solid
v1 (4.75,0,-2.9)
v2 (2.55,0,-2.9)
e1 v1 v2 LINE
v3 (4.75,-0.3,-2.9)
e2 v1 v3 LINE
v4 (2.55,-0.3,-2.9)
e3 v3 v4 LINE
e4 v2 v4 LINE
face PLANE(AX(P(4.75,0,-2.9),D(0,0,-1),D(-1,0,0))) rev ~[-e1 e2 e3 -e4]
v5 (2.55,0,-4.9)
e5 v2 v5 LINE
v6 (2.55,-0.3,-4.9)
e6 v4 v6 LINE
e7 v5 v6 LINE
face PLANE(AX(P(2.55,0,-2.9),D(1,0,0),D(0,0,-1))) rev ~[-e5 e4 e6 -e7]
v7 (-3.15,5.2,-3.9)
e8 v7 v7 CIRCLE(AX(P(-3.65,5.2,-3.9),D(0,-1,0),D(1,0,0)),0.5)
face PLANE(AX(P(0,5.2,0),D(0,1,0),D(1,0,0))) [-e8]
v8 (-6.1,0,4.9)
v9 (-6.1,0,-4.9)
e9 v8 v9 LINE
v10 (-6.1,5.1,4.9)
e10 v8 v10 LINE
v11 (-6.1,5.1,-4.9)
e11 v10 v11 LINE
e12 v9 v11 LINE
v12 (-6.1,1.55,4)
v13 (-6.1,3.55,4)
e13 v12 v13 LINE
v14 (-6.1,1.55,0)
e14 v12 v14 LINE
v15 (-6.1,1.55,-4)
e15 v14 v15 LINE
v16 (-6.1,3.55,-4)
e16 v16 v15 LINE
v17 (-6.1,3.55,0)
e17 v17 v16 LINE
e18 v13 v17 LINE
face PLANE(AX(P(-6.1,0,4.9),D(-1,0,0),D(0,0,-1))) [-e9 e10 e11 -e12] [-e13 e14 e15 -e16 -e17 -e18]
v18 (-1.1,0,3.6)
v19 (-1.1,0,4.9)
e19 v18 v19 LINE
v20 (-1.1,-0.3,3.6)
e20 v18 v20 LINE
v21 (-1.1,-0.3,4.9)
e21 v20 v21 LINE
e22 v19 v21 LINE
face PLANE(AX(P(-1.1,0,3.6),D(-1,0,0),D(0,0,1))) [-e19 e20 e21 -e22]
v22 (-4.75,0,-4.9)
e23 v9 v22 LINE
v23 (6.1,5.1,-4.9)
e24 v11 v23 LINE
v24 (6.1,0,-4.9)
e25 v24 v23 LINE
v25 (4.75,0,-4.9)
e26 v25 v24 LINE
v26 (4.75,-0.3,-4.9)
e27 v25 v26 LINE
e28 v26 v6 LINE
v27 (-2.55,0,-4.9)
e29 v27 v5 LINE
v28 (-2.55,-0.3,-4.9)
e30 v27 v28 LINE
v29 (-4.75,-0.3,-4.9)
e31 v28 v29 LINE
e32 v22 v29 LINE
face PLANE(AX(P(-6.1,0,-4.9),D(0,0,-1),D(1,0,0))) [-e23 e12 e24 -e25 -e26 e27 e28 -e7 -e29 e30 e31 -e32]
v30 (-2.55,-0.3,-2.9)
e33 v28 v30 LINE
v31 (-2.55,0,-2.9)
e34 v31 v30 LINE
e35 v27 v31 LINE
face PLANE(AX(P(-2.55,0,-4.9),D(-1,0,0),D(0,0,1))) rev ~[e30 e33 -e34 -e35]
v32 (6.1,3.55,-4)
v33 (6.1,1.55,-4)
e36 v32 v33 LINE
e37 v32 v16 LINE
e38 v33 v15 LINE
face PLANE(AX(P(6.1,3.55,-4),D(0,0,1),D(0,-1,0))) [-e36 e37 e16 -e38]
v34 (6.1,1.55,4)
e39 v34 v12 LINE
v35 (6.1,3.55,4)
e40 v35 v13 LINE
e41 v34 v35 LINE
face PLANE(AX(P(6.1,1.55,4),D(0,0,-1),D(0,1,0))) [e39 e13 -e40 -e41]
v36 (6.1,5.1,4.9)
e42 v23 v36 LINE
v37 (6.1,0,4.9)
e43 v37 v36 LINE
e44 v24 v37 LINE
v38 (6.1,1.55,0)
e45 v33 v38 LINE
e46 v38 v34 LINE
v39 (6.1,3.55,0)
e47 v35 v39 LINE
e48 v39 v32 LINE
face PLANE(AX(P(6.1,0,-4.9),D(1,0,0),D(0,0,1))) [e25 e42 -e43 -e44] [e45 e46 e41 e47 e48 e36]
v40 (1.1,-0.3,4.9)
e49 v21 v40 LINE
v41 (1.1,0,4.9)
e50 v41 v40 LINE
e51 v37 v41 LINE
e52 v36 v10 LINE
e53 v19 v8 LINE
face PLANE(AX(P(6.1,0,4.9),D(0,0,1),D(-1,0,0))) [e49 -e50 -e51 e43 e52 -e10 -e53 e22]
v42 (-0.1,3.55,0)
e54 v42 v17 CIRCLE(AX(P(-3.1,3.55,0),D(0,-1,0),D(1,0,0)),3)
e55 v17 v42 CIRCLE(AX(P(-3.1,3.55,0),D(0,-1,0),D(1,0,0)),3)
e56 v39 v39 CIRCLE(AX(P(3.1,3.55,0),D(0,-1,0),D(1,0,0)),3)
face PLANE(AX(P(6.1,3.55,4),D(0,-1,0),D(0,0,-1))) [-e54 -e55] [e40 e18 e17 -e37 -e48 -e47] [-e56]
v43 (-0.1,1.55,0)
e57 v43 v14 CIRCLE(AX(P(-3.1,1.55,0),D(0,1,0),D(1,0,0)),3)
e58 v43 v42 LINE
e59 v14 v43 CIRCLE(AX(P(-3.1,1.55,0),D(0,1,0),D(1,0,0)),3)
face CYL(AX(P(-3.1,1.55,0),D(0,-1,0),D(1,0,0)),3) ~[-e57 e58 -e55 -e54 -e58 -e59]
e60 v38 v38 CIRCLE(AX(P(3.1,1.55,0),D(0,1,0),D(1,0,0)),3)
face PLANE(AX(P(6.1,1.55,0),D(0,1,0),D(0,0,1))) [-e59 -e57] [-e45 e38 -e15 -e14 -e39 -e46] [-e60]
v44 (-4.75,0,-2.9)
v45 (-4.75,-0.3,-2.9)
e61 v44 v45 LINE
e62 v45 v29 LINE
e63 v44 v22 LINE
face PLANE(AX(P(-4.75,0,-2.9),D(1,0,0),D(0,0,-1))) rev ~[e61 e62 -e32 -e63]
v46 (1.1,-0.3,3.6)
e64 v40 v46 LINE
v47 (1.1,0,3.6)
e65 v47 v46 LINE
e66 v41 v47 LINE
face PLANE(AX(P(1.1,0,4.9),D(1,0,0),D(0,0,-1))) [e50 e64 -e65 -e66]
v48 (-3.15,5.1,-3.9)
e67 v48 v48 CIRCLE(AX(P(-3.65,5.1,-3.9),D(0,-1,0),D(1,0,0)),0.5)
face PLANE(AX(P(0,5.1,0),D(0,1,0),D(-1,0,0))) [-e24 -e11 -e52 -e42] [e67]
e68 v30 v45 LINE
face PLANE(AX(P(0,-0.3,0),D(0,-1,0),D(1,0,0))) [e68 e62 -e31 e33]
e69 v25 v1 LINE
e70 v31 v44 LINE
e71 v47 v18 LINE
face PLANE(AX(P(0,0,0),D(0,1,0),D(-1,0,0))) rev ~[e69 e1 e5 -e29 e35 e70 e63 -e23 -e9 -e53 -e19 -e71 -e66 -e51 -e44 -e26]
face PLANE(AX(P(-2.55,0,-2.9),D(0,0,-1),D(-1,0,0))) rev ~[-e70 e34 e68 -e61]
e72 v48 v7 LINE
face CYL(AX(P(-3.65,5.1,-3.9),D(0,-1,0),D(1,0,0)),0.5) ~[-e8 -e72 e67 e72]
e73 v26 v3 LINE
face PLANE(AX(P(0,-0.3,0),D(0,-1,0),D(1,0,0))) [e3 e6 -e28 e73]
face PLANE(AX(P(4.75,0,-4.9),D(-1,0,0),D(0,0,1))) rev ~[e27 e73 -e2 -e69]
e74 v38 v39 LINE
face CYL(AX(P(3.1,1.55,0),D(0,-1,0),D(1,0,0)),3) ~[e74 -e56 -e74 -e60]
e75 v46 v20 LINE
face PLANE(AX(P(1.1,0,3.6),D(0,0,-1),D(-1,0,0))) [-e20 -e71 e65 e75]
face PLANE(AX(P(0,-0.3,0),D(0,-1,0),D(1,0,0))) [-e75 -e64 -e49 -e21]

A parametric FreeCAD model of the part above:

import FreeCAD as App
import Part
import Sketcher
Q = App.Units.Quantity

doc = App.newDocument("Part")
body = doc.addObject("PartDesign::Body", "Body")

sketch1 = body.newObject("Sketcher::SketchObject", "Sketch")
sketch1.AttachmentSupport = (doc.getObject("XZ_Plane"), [""])
sketch1.MapMode = "FlatFace"
sketch1.addGeometry(Part.LineSegment(App.Vector(-6, 5, 0), App.Vector(6, 5, 0)), False)
sketch1.addGeometry(Part.LineSegment(App.Vector(6, 5, 0), App.Vector(6, -5, 0)), False)
sketch1.addGeometry(Part.LineSegment(App.Vector(6, -5, 0), App.Vector(-6, -5, 0)), False)
sketch1.addGeometry(Part.LineSegment(App.Vector(-6, -5, 0), App.Vector(-6, 5, 0)), False)
sketch1.addConstraint(Sketcher.Constraint("Coincident", 0, 2, 1, 1))
sketch1.addConstraint(Sketcher.Constraint("Coincident", 1, 2, 2, 1))
sketch1.addConstraint(Sketcher.Constraint("Coincident", 2, 2, 3, 1))
sketch1.addConstraint(Sketcher.Constraint("Coincident", 3, 2, 0, 1))
sketch1.addConstraint(Sketcher.Constraint("Horizontal", 0))
sketch1.addConstraint(Sketcher.Constraint("Vertical", 1))
sketch1.addConstraint(Sketcher.Constraint("Horizontal", 2))
sketch1.addConstraint(Sketcher.Constraint("Vertical", 3))
sketch1.addConstraint(Sketcher.Constraint("Symmetric", 0, 2, 2, 2, -1, 1))
sketch1.addConstraint(Sketcher.Constraint("DistanceX", 0, 1, 0, 2, Q("12.2 mm")))
sketch1.addConstraint(Sketcher.Constraint("DistanceY", 1, 2, 1, 1, Q("9.8 mm")))
pad1 = body.newObject("PartDesign::Pad", "Pad")
pad1.Profile = sketch1
pad1.Length = 5.1
pad1.Reversed = True

sketch2 = body.newObject("Sketcher::SketchObject", "Sketch001")
sketch2.AttachmentSupport = (doc.getObject("YZ_Plane"), [""])
sketch2.MapMode = "FlatFace"
sketch2.AttachmentOffset = App.Placement(App.Vector(0, 0, 6.1), App.Rotation())
sketch2.addGeometry(Part.LineSegment(App.Vector(1.6, 4, 0), App.Vector(1.6, -4, 0)), False)
sketch2.addGeometry(Part.LineSegment(App.Vector(1.6, -4, 0), App.Vector(3.5, -4, 0)), False)
sketch2.addGeometry(Part.LineSegment(App.Vector(3.5, -4, 0), App.Vector(3.5, 4, 0)), False)
sketch2.addGeometry(Part.LineSegment(App.Vector(3.5, 4, 0), App.Vector(1.6, 4, 0)), False)
sketch2.addConstraint(Sketcher.Constraint("Coincident", 0, 2, 1, 1))
sketch2.addConstraint(Sketcher.Constraint("Coincident", 1, 2, 2, 1))
sketch2.addConstraint(Sketcher.Constraint("Coincident", 2, 2, 3, 1))
sketch2.addConstraint(Sketcher.Constraint("Coincident", 3, 2, 0, 1))
sketch2.addConstraint(Sketcher.Constraint("Vertical", 0))
sketch2.addConstraint(Sketcher.Constraint("Horizontal", 1))
sketch2.addConstraint(Sketcher.Constraint("Vertical", 2))
sketch2.addConstraint(Sketcher.Constraint("Horizontal", 3))
sketch2.addConstraint(Sketcher.Constraint("DistanceX", 1, 1, 1, 2, Q("2 mm")))
sketch2.addConstraint(Sketcher.Constraint("DistanceY", 0, 2, 0, 1, Q("8 mm")))
sketch2.addConstraint(Sketcher.Constraint("DistanceY", 0, 2, -1, 1, Q("4 mm")))
sketch2.addConstraint(Sketcher.Constraint("DistanceX", -1, 1, 0, 2, Q("1.55 mm")))
pocket1 = body.newObject("PartDesign::Pocket", "Pocket")
pocket1.Profile = sketch2
pocket1.Type = "UpToFirst"

sketch3 = body.newObject("Sketcher::SketchObject", "Sketch002")
sketch3.AttachmentSupport = (doc.getObject("XZ_Plane"), [""])
sketch3.MapMode = "FlatFace"
sketch3.AttachmentOffset = App.Placement(App.Vector(0, 0, -1.55), App.Rotation())
sketch3.addGeometry(Part.Circle(App.Vector(3.1, 0, 0), App.Vector(0, 0, 1), 3), False)
sketch3.addGeometry(Part.Circle(App.Vector(-3.1, 0, 0), App.Vector(0, 0, 1), 3), False)
sketch3.addConstraint(Sketcher.Constraint("Equal", 0, 1))
sketch3.addConstraint(Sketcher.Constraint("Symmetric", 0, 3, 1, 3, -1, 1))
sketch3.addConstraint(Sketcher.Constraint("PointOnObject", 0, 3, -1))
sketch3.addConstraint(Sketcher.Constraint("Diameter", 0, Q("6 mm")))
sketch3.addConstraint(Sketcher.Constraint("DistanceX", -1, 1, 0, 3, Q("3.1 mm")))
pad2 = body.newObject("PartDesign::Pad", "Pad001")
pad2.Profile = sketch3
pad2.Type = "UpToFirst"
pad2.Reversed = True

sketch4 = body.newObject("Sketcher::SketchObject", "Sketch003")
sketch4.AttachmentSupport = (doc.getObject("XZ_Plane"), [""])
sketch4.MapMode = "FlatFace"
sketch4.addGeometry(Part.LineSegment(App.Vector(1.1, 3.6, 0), App.Vector(1.1, 4.9, 0)), False)
sketch4.addGeometry(Part.LineSegment(App.Vector(1.1, 4.9, 0), App.Vector(-1.1, 4.9, 0)), False)
sketch4.addGeometry(Part.LineSegment(App.Vector(-1.1, 4.9, 0), App.Vector(-1.1, 3.6, 0)), False)
sketch4.addGeometry(Part.LineSegment(App.Vector(-1.1, 3.6, 0), App.Vector(1.1, 3.6, 0)), False)
sketch4.addGeometry(Part.LineSegment(App.Vector(-4.8, -4.9, 0), App.Vector(-2.5, -4.9, 0)), False)
sketch4.addGeometry(Part.LineSegment(App.Vector(-2.5, -4.9, 0), App.Vector(-2.5, -2.9, 0)), False)
sketch4.addGeometry(Part.LineSegment(App.Vector(-2.5, -2.9, 0), App.Vector(-4.8, -2.9, 0)), False)
sketch4.addGeometry(Part.LineSegment(App.Vector(-4.8, -2.9, 0), App.Vector(-4.8, -4.9, 0)), False)
sketch4.addGeometry(Part.LineSegment(App.Vector(2.5, -4.9, 0), App.Vector(4.8, -4.9, 0)), False)
sketch4.addGeometry(Part.LineSegment(App.Vector(4.8, -4.9, 0), App.Vector(4.8, -2.9, 0)), False)
sketch4.addGeometry(Part.LineSegment(App.Vector(4.8, -2.9, 0), App.Vector(2.5, -2.9, 0)), False)
sketch4.addGeometry(Part.LineSegment(App.Vector(2.5, -2.9, 0), App.Vector(2.5, -4.9, 0)), False)
sketch4.addConstraint(Sketcher.Constraint("Coincident", 0, 2, 1, 1))
sketch4.addConstraint(Sketcher.Constraint("Coincident", 1, 2, 2, 1))
sketch4.addConstraint(Sketcher.Constraint("Coincident", 2, 2, 3, 1))
sketch4.addConstraint(Sketcher.Constraint("Coincident", 3, 2, 0, 1))
sketch4.addConstraint(Sketcher.Constraint("Coincident", 4, 2, 5, 1))
sketch4.addConstraint(Sketcher.Constraint("Coincident", 5, 2, 6, 1))
sketch4.addConstraint(Sketcher.Constraint("Coincident", 6, 2, 7, 1))
sketch4.addConstraint(Sketcher.Constraint("Coincident", 7, 2, 4, 1))
sketch4.addConstraint(Sketcher.Constraint("Coincident", 8, 2, 9, 1))
sketch4.addConstraint(Sketcher.Constraint("Coincident", 9, 2, 10, 1))
sketch4.addConstraint(Sketcher.Constraint("Coincident", 10, 2, 11, 1))
sketch4.addConstraint(Sketcher.Constraint("Coincident", 11, 2, 8, 1))
sketch4.addConstraint(Sketcher.Constraint("Vertical", 0))
sketch4.addConstraint(Sketcher.Constraint("Horizontal", 1))
sketch4.addConstraint(Sketcher.Constraint("Vertical", 2))
sketch4.addConstraint(Sketcher.Constraint("Horizontal", 3))
sketch4.addConstraint(Sketcher.Constraint("Horizontal", 4))
sketch4.addConstraint(Sketcher.Constraint("Vertical", 5))
sketch4.addConstraint(Sketcher.Constraint("Horizontal", 6))
sketch4.addConstraint(Sketcher.Constraint("Vertical", 7))
sketch4.addConstraint(Sketcher.Constraint("Horizontal", 8))
sketch4.addConstraint(Sketcher.Constraint("Vertical", 9))
sketch4.addConstraint(Sketcher.Constraint("Horizontal", 10))
sketch4.addConstraint(Sketcher.Constraint("Vertical", 11))
sketch4.addConstraint(Sketcher.Constraint("Symmetric", 7, 2, 8, 2, -2))
sketch4.addConstraint(Sketcher.Constraint("Symmetric", 5, 2, 10, 2, -2))
sketch4.addConstraint(Sketcher.Constraint("Equal", 3, 4))
sketch4.addConstraint(Sketcher.Constraint("DistanceY", 5, 1, 5, 2, Q("2 mm")))
sketch4.addConstraint(Sketcher.Constraint("DistanceX", 1, 2, 1, 1, Q("2.2 mm")))
sketch4.addConstraint(Sketcher.Constraint("DistanceY", 0, 1, 0, 2, Q("1.3 mm")))
sketch4.addConstraint(Sketcher.Constraint("DistanceX", -1, 1, 0, 2, Q("1.1 mm")))
sketch4.addConstraint(Sketcher.Constraint("DistanceX", 4, 2, 8, 2, Q("7.3 mm")))
sketch4.addConstraint(Sketcher.Constraint("DistanceY", -1, 1, 0, 2, Q("4.9 mm")))
sketch4.addConstraint(Sketcher.Constraint("DistanceY", 4, 2, -1, 1, Q("4.9 mm")))
pad3 = body.newObject("PartDesign::Pad", "Pad002")
pad3.Profile = sketch4
pad3.Length = 0.3

sketch5 = body.newObject("Sketcher::SketchObject", "Sketch004")
sketch5.AttachmentSupport = (doc.getObject("XZ_Plane"), [""])
sketch5.MapMode = "FlatFace"
sketch5.AttachmentOffset = App.Placement(App.Vector(0, 0, -5.1), App.Rotation())
sketch5.addGeometry(Part.Circle(App.Vector(-3.6, -3.9, 0), App.Vector(0, 0, 1), 0.5), False)
sketch5.addConstraint(Sketcher.Constraint("Diameter", 0, Q("1 mm")))
sketch5.addConstraint(Sketcher.Constraint("DistanceY", 0, 3, -1, 1, Q("3.9 mm")))
sketch5.addConstraint(Sketcher.Constraint("DistanceX", 0, 3, -1, 1, Q("3.65 mm")))
pad4 = body.newObject("PartDesign::Pad", "Pad003")
pad4.Profile = sketch5
pad4.Length = 0.1
pad4.Reversed = True

doc.recompute()
